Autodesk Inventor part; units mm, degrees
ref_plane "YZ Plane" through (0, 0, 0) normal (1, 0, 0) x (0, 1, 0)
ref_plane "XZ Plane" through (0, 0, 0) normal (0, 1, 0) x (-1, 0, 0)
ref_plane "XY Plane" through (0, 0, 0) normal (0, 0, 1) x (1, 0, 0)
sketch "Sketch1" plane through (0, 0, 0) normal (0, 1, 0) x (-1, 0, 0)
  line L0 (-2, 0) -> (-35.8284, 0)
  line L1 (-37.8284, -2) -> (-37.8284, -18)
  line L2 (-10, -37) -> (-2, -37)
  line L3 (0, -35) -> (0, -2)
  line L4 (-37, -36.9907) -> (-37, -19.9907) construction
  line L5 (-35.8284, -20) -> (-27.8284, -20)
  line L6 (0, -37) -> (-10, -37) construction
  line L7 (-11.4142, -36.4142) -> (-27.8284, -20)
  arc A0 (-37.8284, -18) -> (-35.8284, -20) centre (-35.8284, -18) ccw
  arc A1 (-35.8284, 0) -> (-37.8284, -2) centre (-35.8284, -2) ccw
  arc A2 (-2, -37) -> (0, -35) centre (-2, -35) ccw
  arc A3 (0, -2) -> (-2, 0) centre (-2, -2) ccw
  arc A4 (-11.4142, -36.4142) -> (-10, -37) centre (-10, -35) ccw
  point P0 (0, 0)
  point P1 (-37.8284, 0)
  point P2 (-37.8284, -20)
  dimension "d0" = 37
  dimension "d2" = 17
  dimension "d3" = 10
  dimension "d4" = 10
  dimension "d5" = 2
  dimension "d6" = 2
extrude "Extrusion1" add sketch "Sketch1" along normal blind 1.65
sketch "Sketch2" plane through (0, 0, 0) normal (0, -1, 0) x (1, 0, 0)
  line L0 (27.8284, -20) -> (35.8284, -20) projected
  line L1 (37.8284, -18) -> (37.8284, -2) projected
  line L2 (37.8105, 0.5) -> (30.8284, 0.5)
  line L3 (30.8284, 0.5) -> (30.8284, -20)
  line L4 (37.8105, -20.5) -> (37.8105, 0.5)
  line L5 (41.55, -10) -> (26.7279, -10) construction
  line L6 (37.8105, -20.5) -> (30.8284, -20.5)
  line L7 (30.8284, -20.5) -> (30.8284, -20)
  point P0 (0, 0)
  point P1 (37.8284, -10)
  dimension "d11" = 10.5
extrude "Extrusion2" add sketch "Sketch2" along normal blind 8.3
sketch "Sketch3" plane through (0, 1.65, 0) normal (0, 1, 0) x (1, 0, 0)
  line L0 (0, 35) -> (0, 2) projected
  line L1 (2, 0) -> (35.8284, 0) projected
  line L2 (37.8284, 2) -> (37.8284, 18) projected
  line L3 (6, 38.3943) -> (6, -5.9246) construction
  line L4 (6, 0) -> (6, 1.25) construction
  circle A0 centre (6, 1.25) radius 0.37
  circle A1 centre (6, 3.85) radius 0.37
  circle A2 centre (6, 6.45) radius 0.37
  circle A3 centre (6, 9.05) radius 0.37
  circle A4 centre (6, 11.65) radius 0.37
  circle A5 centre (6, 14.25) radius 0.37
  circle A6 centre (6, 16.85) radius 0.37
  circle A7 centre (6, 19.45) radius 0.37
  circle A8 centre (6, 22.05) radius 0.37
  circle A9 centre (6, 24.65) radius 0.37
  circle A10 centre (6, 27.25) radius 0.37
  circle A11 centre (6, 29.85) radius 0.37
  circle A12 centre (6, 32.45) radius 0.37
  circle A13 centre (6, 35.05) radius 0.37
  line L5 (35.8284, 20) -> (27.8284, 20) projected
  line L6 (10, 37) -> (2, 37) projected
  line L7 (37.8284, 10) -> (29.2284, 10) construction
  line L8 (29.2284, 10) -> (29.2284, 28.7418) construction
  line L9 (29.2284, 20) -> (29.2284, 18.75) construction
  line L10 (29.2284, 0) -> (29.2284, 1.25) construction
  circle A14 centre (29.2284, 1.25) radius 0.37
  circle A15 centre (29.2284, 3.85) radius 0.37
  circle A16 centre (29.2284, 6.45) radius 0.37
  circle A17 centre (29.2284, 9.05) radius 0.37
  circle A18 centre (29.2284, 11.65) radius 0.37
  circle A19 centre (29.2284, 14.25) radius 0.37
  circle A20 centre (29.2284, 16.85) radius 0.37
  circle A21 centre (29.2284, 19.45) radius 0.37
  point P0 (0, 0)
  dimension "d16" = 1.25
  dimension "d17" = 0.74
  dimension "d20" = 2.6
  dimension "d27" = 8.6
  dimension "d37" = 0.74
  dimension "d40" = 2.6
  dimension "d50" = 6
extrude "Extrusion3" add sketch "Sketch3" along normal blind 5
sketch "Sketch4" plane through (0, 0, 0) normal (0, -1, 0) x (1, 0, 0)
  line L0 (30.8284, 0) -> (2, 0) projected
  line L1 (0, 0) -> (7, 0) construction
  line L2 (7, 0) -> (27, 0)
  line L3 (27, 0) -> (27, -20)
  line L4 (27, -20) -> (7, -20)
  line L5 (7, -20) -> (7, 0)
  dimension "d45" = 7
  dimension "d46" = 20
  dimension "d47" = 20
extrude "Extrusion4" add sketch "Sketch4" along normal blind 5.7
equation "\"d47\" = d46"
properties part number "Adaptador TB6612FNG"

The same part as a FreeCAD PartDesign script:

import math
import FreeCAD as App
import Part
import Sketcher
from FreeCAD import Vector
Q = App.Units.Quantity

doc = App.newDocument("Part")
body = doc.addObject("PartDesign::Body", "Body")

sketch1 = doc.addObject("Sketcher::SketchObject", "Sketch")
body.addObject(sketch1)
sketch1.AttachmentSupport = (doc.XZ_Plane, [""])
sketch1.MapMode = "FlatFace"
sketch1.addGeometry([
    Part.ArcOfCircle(Part.Circle(Vector(2, -2, 0), Vector(0, 0, 1), 2), math.radians(90), math.radians(180)),
    Part.LineSegment(Vector(2, 0, 0), Vector(35.8, 0, 0)),
    Part.ArcOfCircle(Part.Circle(Vector(35.8, -2, 0), Vector(0, 0, 1), 2), math.radians(0), math.radians(90)),
    Part.LineSegment(Vector(37.8, -2, 0), Vector(37.8, -18, 0)),
    Part.ArcOfCircle(Part.Circle(Vector(35.8, -18, 0), Vector(0, 0, 1), 2), math.radians(-90), math.radians(0)),
    Part.LineSegment(Vector(35.8, -20, 0), Vector(27.8, -20, 0)),
    Part.LineSegment(Vector(27.8, -20, 0), Vector(11.4, -36.4, 0)),
    Part.ArcOfCircle(Part.Circle(Vector(10, -35, 0), Vector(0, 0, 1), 2), math.radians(-90), math.radians(-45)),
    Part.LineSegment(Vector(10, -37, 0), Vector(2, -37, 0)),
    Part.ArcOfCircle(Part.Circle(Vector(2, -35, 0), Vector(0, 0, 1), 2), math.radians(180), math.radians(270)),
    Part.LineSegment(Vector(0, -35, 0), Vector(0, -2, 0)),
], False)
sketch1.addConstraint([
    Sketcher.Constraint("Tangent", 0, 1, 1, 1),
    Sketcher.Constraint("Tangent", 1, 2, 2, 2),
    Sketcher.Constraint("Tangent", 2, 1, 3, 1),
    Sketcher.Constraint("Tangent", 3, 2, 4, 2),
    Sketcher.Constraint("Tangent", 4, 1, 5, 1),
    Sketcher.Constraint("Coincident", 5, 2, 6, 1),
    Sketcher.Constraint("Tangent", 6, 2, 7, 2),
    Sketcher.Constraint("Tangent", 7, 1, 8, 1),
    Sketcher.Constraint("Tangent", 8, 2, 9, 2),
    Sketcher.Constraint("Tangent", 9, 1, 10, 1),
    Sketcher.Constraint("Tangent", 10, 2, 0, 2),
    Sketcher.Constraint("Horizontal", 1),
    Sketcher.Constraint("Vertical", 3),
    Sketcher.Constraint("Horizontal", 5),
    Sketcher.Constraint("Horizontal", 8),
    Sketcher.Constraint("Vertical", 10),
    Sketcher.Constraint("Equal", 0, 2),
    Sketcher.Constraint("Equal", 2, 4),
    Sketcher.Constraint("Equal", 4, 7),
    Sketcher.Constraint("Equal", 7, 9),
    Sketcher.Constraint("PointOnObject", 0, 1, -1),
    Sketcher.Constraint("PointOnObject", 9, 1, -2),
    Sketcher.Constraint("Equal", 5, 8),
    Sketcher.Constraint("Radius", 0, Q("2 mm")),
    Sketcher.Constraint("DistanceX", -1, 1, 7, 3, Q("10 mm")),
    Sketcher.Constraint("DistanceY", 7, 1, -1, 1, Q("37 mm")),
    Sketcher.Constraint("DistanceY", 7, 3, 4, 3, Q("17 mm")),
    Sketcher.Constraint("Angle", 6, Q("-135 deg")),
])
pad1 = doc.addObject("PartDesign::Pad", "Pad")
body.addObject(pad1)
pad1.Profile = sketch1
pad1.Length = 1.65
pad1.Reversed = True

sketch2 = doc.addObject("Sketcher::SketchObject", "Sketch001")
body.addObject(sketch2)
sketch2.AttachmentSupport = (doc.XZ_Plane, [""])
sketch2.MapMode = "FlatFace"
sketch2.addGeometry([
    Part.LineSegment(Vector(38, -20, 0), Vector(38, 0, 0)),
    Part.LineSegment(Vector(38, 0, 0), Vector(31, 0, 0)),
    Part.LineSegment(Vector(31, 0, 0), Vector(31, -20, 0)),
    Part.LineSegment(Vector(31, -20, 0), Vector(38, -20, 0)),
], False)
sketch2.addConstraint([
    Sketcher.Constraint("Coincident", 0, 2, 1, 1),
    Sketcher.Constraint("Coincident", 1, 2, 2, 1),
    Sketcher.Constraint("Coincident", 2, 2, 3, 1),
    Sketcher.Constraint("Coincident", 3, 2, 0, 1),
    Sketcher.Constraint("Vertical", 0),
    Sketcher.Constraint("Horizontal", 1),
    Sketcher.Constraint("Vertical", 2),
    Sketcher.Constraint("Horizontal", 3),
    Sketcher.Constraint("DistanceY", 0, 1, 0, 2, Q("21 mm")),
    Sketcher.Constraint("DistanceY", -1, 1, 0, 2, Q("0.5 mm")),
    Sketcher.Constraint("DistanceX", 1, 2, 1, 1, Q("6.982 mm")),
    Sketcher.Constraint("DistanceX", -1, 1, 0, 2, Q("37.8105 mm")),
])
pad2 = doc.addObject("PartDesign::Pad", "Pad001")
body.addObject(pad2)
pad2.Profile = sketch2
pad2.Length = 8.3

sketch3 = doc.addObject("Sketcher::SketchObject", "Sketch002")
body.addObject(sketch3)
sketch3.AttachmentSupport = (doc.XZ_Plane, [""])
sketch3.MapMode = "FlatFace"
sketch3.AttachmentOffset = App.Placement(Vector(0, 0, -1.65), App.Rotation())
sketch3.addGeometry([
    Part.Circle(Vector(6, -1.25, 0), Vector(0, 0, 1), 0.37),
    Part.Circle(Vector(6, -3.85, 0), Vector(0, 0, 1), 0.37),
    Part.Circle(Vector(6, -6.45, 0), Vector(0, 0, 1), 0.37),
    Part.Circle(Vector(6, -9.05, 0), Vector(0, 0, 1), 0.37),
    Part.Circle(Vector(6, -11.65, 0), Vector(0, 0, 1), 0.37),
    Part.Circle(Vector(6, -14.25, 0), Vector(0, 0, 1), 0.37),
    Part.Circle(Vector(6, -16.85, 0), Vector(0, 0, 1), 0.37),
    Part.Circle(Vector(6, -19.45, 0), Vector(0, 0, 1), 0.37),
    Part.Circle(Vector(6, -22.05, 0), Vector(0, 0, 1), 0.37),
    Part.Circle(Vector(6, -24.65, 0), Vector(0, 0, 1), 0.37),
    Part.Circle(Vector(6, -27.25, 0), Vector(0, 0, 1), 0.37),
    Part.Circle(Vector(6, -29.85, 0), Vector(0, 0, 1), 0.37),
    Part.Circle(Vector(6, -32.45, 0), Vector(0, 0, 1), 0.37),
    Part.Circle(Vector(6, -35.05, 0), Vector(0, 0, 1), 0.37),
    Part.Circle(Vector(29.23, -1.25, 0), Vector(0, 0, 1), 0.37),
    Part.Circle(Vector(29.23, -3.85, 0), Vector(0, 0, 1), 0.37),
    Part.Circle(Vector(29.23, -6.45, 0), Vector(0, 0, 1), 0.37),
    Part.Circle(Vector(29.23, -9.05, 0), Vector(0, 0, 1), 0.37),
    Part.Circle(Vector(29.23, -11.65, 0), Vector(0, 0, 1), 0.37),
    Part.Circle(Vector(29.23, -14.25, 0), Vector(0, 0, 1), 0.37),
    Part.Circle(Vector(29.23, -16.85, 0), Vector(0, 0, 1), 0.37),
    Part.Circle(Vector(29.23, -19.45, 0), Vector(0, 0, 1), 0.37),
], False)
sketch3.addConstraint([
    Sketcher.Constraint("Equal", 0, 1),
    Sketcher.Constraint("Equal", 1, 2),
    Sketcher.Constraint("Equal", 2, 3),
    Sketcher.Constraint("Equal", 3, 4),
    Sketcher.Constraint("Equal", 4, 5),
    Sketcher.Constraint("Equal", 5, 6),
    Sketcher.Constraint("Equal", 6, 7),
    Sketcher.Constraint("Equal", 7, 8),
    Sketcher.Constraint("Equal", 8, 9),
    Sketcher.Constraint("Equal", 9, 10),
    Sketcher.Constraint("Equal", 10, 11),
    Sketcher.Constraint("Equal", 11, 12),
    Sketcher.Constraint("Equal", 12, 13),
    Sketcher.Constraint("Equal", 13, 14),
    Sketcher.Constraint("Equal", 14, 15),
    Sketcher.Constraint("Equal", 15, 16),
    Sketcher.Constraint("Equal", 16, 17),
    Sketcher.Constraint("Equal", 17, 18),
    Sketcher.Constraint("Equal", 18, 19),
    Sketcher.Constraint("Equal", 19, 20),
    Sketcher.Constraint("Equal", 20, 21),
    Sketcher.Constraint("Horizontal", 0, 3, 14, 3),
    Sketcher.Constraint("Horizontal", 1, 3, 15, 3),
    Sketcher.Constraint("Horizontal", 2, 3, 16, 3),
    Sketcher.Constraint("Horizontal", 3, 3, 17, 3),
    Sketcher.Constraint("Horizontal", 4, 3, 18, 3),
    Sketcher.Constraint("Horizontal", 5, 3, 19, 3),
    Sketcher.Constraint("Horizontal", 6, 3, 20, 3),
    Sketcher.Constraint("Horizontal", 7, 3, 21, 3),
    Sketcher.Constraint("Vertical", 0, 3, 1, 3),
    Sketcher.Constraint("Vertical", 1, 3, 2, 3),
    Sketcher.Constraint("Vertical", 2, 3, 3, 3),
    Sketcher.Constraint("Vertical", 3, 3, 4, 3),
    Sketcher.Constraint("Vertical", 4, 3, 5, 3),
    Sketcher.Constraint("Vertical", 5, 3, 6, 3),
    Sketcher.Constraint("Vertical", 6, 3, 7, 3),
    Sketcher.Constraint("Vertical", 7, 3, 8, 3),
    Sketcher.Constraint("Vertical", 8, 3, 9, 3),
    Sketcher.Constraint("Vertical", 9, 3, 10, 3),
    Sketcher.Constraint("Vertical", 10, 3, 11, 3),
    Sketcher.Constraint("Vertical", 11, 3, 12, 3),
    Sketcher.Constraint("Vertical", 12, 3, 13, 3),
    Sketcher.Constraint("Vertical", 14, 3, 15, 3),
    Sketcher.Constraint("Vertical", 15, 3, 16, 3),
    Sketcher.Constraint("Vertical", 16, 3, 17, 3),
    Sketcher.Constraint("Vertical", 17, 3, 18, 3),
    Sketcher.Constraint("Vertical", 18, 3, 19, 3),
    Sketcher.Constraint("Vertical", 19, 3, 20, 3),
    Sketcher.Constraint("Vertical", 20, 3, 21, 3),
    Sketcher.Constraint("Diameter", 0, Q("0.74 mm")),
    Sketcher.Constraint("DistanceX", -1, 1, 0, 3, Q("6 mm")),
    Sketcher.Constraint("DistanceY", 1, 3, 0, 3, Q("2.6 mm")),
    Sketcher.Constraint("DistanceY", 2, 3, 1, 3, Q("2.6 mm")),
    Sketcher.Constraint("DistanceY", 3, 3, 2, 3, Q("2.6 mm")),
    Sketcher.Constraint("DistanceY", 4, 3, 3, 3, Q("2.6 mm")),
    Sketcher.Constraint("DistanceY", 5, 3, 4, 3, Q("2.6 mm")),
    Sketcher.Constraint("DistanceY", 6, 3, 5, 3, Q("2.6 mm")),
    Sketcher.Constraint("DistanceY", 7, 3, 6, 3, Q("2.6 mm")),
    Sketcher.Constraint("DistanceY", 8, 3, 7, 3, Q("2.6 mm")),
    Sketcher.Constraint("DistanceY", 9, 3, 8, 3, Q("2.6 mm")),
    Sketcher.Constraint("DistanceY", 10, 3, 9, 3, Q("2.6 mm")),
    Sketcher.Constraint("DistanceY", 11, 3, 10, 3, Q("2.6 mm")),
    Sketcher.Constraint("DistanceY", 12, 3, 11, 3, Q("2.6 mm")),
    Sketcher.Constraint("DistanceY", 13, 3, 12, 3, Q("2.6 mm")),
    Sketcher.Constraint("DistanceY", 0, 3, -1, 1, Q("1.25 mm")),
    Sketcher.Constraint("DistanceX", -1, 1, 14, 3, Q("29.2284 mm")),
])
pad3 = doc.addObject("PartDesign::Pad", "Pad002")
body.addObject(pad3)
pad3.Profile = sketch3
pad3.Length = 5
pad3.Reversed = True

sketch4 = doc.addObject("Sketcher::SketchObject", "Sketch003")
body.addObject(sketch4)
sketch4.AttachmentSupport = (doc.XZ_Plane, [""])
sketch4.MapMode = "FlatFace"
sketch4.addGeometry([
    Part.LineSegment(Vector(27, -20, 0), Vector(27, 0, 0)),
    Part.LineSegment(Vector(27, 0, 0), Vector(7, 0, 0)),
    Part.LineSegment(Vector(7, 0, 0), Vector(7, -20, 0)),
    Part.LineSegment(Vector(7, -20, 0), Vector(27, -20, 0)),
], False)
sketch4.addConstraint([
    Sketcher.Constraint("Coincident", 0, 2, 1, 1),
    Sketcher.Constraint("Coincident", 1, 2, 2, 1),
    Sketcher.Constraint("Coincident", 2, 2, 3, 1),
    Sketcher.Constraint("Coincident", 3, 2, 0, 1),
    Sketcher.Constraint("Vertical", 0),
    Sketcher.Constraint("Horizontal", 1),
    Sketcher.Constraint("Vertical", 2),
    Sketcher.Constraint("Horizontal", 3),
    Sketcher.Constraint("PointOnObject", 0, 2, -1),
    Sketcher.Constraint("Equal", 3, 0),
    Sketcher.Constraint("DistanceX", 1, 2, 1, 1, Q("20 mm")),
    Sketcher.Constraint("DistanceX", -1, 1, 1, 2, Q("7 mm")),
])
pad4 = doc.addObject("PartDesign::Pad", "Pad003")
body.addObject(pad4)
pad4.Profile = sketch4
pad4.Length = 5.7

doc.recompute()
